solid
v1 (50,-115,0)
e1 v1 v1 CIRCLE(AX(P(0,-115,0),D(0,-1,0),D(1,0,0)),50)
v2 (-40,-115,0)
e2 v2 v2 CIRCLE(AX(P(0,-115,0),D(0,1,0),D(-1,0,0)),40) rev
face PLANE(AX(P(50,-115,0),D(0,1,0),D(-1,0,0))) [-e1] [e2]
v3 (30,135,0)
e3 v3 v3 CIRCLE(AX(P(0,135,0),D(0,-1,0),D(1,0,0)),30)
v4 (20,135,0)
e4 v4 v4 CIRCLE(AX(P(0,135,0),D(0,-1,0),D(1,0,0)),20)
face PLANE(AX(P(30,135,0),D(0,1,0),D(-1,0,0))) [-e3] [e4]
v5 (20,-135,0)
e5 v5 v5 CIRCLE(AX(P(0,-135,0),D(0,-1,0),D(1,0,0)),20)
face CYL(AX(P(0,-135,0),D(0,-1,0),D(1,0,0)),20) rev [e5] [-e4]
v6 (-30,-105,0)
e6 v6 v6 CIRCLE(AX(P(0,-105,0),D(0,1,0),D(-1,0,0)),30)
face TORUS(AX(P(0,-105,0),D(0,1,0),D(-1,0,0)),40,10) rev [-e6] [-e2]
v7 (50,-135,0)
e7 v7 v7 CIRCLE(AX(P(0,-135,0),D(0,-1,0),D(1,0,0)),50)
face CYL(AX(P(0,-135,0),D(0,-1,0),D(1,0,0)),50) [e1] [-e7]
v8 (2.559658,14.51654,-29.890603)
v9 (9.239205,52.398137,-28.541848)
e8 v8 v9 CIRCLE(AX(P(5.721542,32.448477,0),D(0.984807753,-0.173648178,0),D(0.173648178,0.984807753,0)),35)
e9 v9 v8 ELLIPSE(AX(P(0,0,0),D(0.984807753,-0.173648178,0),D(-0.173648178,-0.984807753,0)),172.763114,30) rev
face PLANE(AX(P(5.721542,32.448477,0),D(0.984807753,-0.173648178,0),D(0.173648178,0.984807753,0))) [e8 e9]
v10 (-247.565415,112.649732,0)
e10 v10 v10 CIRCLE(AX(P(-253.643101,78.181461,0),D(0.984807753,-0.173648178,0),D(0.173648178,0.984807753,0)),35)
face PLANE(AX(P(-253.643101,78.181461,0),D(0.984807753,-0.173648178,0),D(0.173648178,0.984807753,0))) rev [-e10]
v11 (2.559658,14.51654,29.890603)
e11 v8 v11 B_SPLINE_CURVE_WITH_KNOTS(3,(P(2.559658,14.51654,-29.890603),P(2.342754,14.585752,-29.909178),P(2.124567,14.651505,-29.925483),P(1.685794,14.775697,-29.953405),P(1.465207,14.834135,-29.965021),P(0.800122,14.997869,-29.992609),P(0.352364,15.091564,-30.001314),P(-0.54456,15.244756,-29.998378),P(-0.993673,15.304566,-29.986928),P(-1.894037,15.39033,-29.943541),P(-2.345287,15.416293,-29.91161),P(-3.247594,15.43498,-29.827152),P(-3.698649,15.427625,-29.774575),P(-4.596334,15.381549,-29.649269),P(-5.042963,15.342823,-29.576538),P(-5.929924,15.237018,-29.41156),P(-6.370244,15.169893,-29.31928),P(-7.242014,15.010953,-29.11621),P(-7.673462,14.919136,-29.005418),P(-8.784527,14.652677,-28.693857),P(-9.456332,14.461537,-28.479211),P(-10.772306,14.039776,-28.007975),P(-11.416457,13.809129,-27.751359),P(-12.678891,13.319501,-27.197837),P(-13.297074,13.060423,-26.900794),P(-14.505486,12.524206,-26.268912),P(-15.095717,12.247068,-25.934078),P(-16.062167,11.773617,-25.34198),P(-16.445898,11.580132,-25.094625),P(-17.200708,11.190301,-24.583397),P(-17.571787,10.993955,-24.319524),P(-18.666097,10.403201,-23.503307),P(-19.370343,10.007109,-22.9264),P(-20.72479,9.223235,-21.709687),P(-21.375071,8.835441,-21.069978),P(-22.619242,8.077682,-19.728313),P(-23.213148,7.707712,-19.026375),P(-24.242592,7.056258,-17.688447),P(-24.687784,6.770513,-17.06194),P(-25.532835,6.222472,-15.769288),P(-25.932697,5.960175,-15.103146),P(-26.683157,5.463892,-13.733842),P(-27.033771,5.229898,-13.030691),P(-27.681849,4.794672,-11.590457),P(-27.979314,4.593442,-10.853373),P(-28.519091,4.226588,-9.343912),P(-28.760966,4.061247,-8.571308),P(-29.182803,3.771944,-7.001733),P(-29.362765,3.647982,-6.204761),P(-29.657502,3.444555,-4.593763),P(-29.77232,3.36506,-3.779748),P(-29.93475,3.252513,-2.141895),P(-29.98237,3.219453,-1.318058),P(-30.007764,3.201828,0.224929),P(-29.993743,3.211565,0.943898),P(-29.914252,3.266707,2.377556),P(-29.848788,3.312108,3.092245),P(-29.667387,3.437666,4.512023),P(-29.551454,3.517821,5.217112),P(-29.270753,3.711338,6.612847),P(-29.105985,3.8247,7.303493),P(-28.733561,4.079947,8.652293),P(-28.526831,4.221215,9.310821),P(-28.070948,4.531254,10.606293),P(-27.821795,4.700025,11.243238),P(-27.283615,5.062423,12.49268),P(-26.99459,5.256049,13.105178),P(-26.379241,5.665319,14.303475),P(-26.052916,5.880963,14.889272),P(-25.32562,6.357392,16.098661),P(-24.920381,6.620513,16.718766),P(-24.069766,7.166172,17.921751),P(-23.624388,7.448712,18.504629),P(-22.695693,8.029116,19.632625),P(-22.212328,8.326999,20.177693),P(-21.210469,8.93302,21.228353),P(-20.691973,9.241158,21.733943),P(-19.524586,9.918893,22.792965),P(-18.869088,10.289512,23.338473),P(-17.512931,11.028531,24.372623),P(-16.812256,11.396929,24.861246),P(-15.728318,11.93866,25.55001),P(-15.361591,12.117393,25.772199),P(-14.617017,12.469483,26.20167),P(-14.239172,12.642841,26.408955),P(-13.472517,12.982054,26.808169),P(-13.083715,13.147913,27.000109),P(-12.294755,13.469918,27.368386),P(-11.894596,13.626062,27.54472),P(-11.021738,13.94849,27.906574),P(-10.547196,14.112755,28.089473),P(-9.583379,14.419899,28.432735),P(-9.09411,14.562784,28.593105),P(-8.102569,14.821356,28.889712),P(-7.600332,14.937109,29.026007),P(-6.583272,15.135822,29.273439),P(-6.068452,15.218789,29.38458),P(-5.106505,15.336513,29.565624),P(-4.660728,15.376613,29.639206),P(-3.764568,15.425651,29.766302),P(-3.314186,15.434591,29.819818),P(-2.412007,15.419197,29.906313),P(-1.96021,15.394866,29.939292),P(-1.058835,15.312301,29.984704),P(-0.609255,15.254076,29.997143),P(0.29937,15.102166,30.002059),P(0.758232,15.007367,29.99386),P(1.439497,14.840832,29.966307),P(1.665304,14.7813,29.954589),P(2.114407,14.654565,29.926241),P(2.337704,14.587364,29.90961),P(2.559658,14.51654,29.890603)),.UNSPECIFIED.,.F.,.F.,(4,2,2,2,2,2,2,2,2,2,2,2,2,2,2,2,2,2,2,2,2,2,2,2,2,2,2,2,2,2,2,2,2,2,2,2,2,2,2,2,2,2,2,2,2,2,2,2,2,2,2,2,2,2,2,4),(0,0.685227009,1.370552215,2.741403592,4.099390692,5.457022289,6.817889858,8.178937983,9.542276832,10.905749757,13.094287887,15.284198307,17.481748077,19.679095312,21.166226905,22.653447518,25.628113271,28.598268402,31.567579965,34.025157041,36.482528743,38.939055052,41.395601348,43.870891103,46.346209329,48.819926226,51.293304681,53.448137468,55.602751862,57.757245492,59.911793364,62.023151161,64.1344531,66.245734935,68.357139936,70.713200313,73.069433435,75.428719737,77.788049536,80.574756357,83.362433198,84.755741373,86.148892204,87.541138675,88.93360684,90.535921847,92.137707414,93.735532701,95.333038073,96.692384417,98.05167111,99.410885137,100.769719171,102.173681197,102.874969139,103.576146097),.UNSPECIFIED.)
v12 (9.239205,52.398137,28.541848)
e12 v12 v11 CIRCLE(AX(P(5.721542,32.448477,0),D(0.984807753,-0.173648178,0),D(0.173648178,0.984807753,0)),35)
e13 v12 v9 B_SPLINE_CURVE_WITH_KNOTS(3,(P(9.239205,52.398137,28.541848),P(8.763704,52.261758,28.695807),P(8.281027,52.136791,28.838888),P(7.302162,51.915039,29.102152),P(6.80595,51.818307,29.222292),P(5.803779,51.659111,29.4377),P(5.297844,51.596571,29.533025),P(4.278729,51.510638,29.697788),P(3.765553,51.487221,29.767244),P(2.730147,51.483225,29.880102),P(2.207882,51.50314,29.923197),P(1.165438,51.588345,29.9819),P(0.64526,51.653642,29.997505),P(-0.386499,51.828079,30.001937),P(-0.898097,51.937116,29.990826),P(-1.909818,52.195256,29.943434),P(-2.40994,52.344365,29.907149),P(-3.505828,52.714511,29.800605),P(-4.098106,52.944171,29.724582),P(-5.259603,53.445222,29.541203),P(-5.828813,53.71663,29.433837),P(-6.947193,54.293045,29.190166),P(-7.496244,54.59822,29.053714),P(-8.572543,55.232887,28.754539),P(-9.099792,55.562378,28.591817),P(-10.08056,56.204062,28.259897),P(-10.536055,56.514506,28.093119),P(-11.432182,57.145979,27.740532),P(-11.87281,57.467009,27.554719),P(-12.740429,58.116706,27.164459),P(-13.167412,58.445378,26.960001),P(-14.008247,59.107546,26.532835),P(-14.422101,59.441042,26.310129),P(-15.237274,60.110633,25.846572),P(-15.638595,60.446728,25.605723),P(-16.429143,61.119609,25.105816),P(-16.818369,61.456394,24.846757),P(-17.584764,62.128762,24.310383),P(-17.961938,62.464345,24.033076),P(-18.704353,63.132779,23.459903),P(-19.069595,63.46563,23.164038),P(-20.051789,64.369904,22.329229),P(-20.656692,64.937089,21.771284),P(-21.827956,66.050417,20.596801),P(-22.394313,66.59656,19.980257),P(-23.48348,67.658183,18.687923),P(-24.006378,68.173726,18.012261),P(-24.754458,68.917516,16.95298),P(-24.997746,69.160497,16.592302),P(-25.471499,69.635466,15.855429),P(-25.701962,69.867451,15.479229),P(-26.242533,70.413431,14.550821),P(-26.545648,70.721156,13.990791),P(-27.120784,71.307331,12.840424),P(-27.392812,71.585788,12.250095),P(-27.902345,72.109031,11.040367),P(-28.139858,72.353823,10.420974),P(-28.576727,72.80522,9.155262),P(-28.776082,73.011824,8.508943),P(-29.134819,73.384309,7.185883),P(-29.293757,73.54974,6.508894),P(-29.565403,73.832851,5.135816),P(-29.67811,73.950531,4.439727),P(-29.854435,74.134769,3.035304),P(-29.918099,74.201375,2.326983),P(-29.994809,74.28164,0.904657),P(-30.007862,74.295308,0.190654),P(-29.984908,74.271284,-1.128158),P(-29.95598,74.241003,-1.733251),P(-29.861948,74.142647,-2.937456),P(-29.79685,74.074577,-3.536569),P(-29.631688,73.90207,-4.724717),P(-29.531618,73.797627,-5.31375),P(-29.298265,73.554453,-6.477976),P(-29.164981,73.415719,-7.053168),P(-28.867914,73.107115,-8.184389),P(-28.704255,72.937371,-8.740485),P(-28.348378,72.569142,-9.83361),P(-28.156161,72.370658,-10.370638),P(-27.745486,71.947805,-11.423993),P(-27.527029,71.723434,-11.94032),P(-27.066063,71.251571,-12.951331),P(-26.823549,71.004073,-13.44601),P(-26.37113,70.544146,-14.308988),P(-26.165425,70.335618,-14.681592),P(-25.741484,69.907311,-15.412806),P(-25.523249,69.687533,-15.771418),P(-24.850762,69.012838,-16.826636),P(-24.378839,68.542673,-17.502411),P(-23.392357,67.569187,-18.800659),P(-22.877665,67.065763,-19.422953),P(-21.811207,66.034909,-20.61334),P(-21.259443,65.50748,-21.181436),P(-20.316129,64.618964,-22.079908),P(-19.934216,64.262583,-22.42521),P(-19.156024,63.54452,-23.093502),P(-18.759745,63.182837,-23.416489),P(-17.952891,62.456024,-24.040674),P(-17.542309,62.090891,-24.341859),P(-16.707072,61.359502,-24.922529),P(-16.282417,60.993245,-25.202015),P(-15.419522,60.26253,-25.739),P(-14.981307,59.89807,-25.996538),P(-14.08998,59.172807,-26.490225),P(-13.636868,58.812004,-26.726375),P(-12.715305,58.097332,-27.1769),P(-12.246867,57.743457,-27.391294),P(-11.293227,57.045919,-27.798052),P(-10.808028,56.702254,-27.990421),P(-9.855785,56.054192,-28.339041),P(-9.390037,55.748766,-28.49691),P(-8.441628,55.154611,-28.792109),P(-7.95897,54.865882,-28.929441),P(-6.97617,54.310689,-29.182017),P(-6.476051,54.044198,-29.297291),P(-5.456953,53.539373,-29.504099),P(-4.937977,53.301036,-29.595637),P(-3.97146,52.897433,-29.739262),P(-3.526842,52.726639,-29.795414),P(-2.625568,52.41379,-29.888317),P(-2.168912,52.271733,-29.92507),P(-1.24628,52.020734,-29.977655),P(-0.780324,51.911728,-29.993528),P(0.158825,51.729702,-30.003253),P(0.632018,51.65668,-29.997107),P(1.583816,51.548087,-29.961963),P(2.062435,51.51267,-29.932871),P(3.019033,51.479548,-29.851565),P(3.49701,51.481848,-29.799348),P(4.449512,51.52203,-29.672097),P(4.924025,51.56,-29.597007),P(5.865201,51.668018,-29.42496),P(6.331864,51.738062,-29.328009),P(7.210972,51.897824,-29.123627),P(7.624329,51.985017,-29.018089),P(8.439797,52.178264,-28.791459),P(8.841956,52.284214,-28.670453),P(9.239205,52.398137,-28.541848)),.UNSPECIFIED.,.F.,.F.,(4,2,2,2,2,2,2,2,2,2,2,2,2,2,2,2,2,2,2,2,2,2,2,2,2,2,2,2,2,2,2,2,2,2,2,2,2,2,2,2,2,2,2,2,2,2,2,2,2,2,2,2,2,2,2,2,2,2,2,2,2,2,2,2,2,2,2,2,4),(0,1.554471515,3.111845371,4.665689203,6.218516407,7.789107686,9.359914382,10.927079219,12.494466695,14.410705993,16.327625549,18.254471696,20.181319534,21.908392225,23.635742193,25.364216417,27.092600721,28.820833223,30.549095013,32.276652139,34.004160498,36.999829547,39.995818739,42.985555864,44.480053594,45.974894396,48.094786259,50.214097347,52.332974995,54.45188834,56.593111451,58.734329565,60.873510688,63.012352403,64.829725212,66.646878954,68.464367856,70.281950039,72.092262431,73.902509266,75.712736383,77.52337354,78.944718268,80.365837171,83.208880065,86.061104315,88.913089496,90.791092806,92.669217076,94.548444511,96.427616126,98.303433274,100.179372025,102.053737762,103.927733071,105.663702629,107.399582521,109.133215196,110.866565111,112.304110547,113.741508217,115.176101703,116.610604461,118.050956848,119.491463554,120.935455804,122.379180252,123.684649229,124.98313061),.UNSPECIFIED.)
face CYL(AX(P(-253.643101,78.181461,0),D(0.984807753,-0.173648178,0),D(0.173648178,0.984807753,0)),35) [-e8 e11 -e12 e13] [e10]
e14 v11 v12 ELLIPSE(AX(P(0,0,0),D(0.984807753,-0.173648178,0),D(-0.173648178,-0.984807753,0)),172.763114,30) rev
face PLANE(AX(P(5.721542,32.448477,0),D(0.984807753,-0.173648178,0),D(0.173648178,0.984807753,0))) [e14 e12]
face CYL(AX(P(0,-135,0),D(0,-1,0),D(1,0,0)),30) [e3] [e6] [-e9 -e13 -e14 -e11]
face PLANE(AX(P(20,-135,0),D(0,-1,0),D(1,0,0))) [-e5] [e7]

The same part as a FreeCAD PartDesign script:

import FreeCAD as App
import Part
import Sketcher

V = App.Vector


def edges_at(feature, points):
    """Names of the edges that pass closest to the given points."""
    edges = feature.Shape.Edges
    near = lambda p: min(range(len(edges)), key=lambda i: edges[i].distToShape(Part.Vertex(*p))[0])
    return sorted({f"Edge{near(p) + 1}" for p in points})

doc = App.newDocument("Part")
params = doc.addObject("Spreadsheet::Sheet", "Params")
for row, (alias, value) in enumerate([
    ("sketch1_width", "10 mm"),
    ("sketch1_width2", "30 mm"),
    ("sketch1_height", "250 mm"),
    ("revolution_angle", "360 deg"),
    ("sketch2_diameter", "70 mm"),
    ("pad1_length", "263.365761 mm"),
    ("fillet_radius", "10 mm"),
    ("sketch3_diameter", "40 mm"),
], start=1):
    params.set(f"A{row}", alias)
    params.set(f"B{row}", "=" + value)
    params.setAlias(f"B{row}", alias)

body = doc.addObject("PartDesign::Body", "Body")

# Sketch on XY plane
sketch1 = body.newObject("Sketcher::SketchObject", "Sketch")
sketch1.AttachmentSupport = (doc.getObject("XY_Plane"), [""])
sketch1.MapMode = "FlatFace"
sketch1.addGeometry([
    Part.LineSegment(V(30, -115, 0), V(30, 135, 0)),  # 0
    Part.LineSegment(V(30, 135, 0), V(20, 135, 0)),  # 1
    Part.LineSegment(V(20, 135, 0), V(20, -135, 0)),  # 2
    Part.LineSegment(V(20, -135, 0), V(50, -135, 0)),  # 3
    Part.LineSegment(V(50, -135, 0), V(50, -115, 0)),  # 4
    Part.LineSegment(V(50, -115, 0), V(30, -115, 0)),  # 5
], False)
sketch1.addConstraint([
    Sketcher.Constraint("Coincident", 0, 2, 1, 1),
    Sketcher.Constraint("Coincident", 1, 2, 2, 1),
    Sketcher.Constraint("Coincident", 2, 2, 3, 1),
    Sketcher.Constraint("Coincident", 3, 2, 4, 1),
    Sketcher.Constraint("Coincident", 4, 2, 5, 1),
    Sketcher.Constraint("Coincident", 5, 2, 0, 1),
    Sketcher.Constraint("Vertical", 0),
    Sketcher.Constraint("Horizontal", 1),
    Sketcher.Constraint("Vertical", 2),
    Sketcher.Constraint("Horizontal", 3),
    Sketcher.Constraint("Vertical", 4),
    Sketcher.Constraint("Horizontal", 5),
    Sketcher.Constraint("Equal", 5, 4),
    Sketcher.Constraint("DistanceX", 1, 2, 1, 1, 10.0),
    Sketcher.Constraint("DistanceX", 3, 1, 3, 2, 30.0),
    Sketcher.Constraint("DistanceY", 0, 1, 0, 2, 250.0),
    Sketcher.Constraint("DistanceX", -1, 1, 0, 2, 30.0),
    Sketcher.Constraint("DistanceY", -1, 1, 0, 2, 135.0),
])
sketch1.setExpression("Constraints[13]", "Params.sketch1_width")
sketch1.setExpression("Constraints[14]", "Params.sketch1_width2")
sketch1.setExpression("Constraints[15]", "Params.sketch1_height")
revolution = body.newObject("PartDesign::Revolution", "Revolution")
revolution.Profile = sketch1
revolution.ReferenceAxis = (sketch1, ["V_Axis"])
revolution.setExpression("Angle", "Params.revolution_angle")

# Sketch on an angled plane
sketch2 = body.newObject("Sketcher::SketchObject", "Sketch001")
sketch2.Placement = App.Placement(V(0.0697, 0.39529, -0.070775), App.Rotation(V(-0.03015369, -0.171010072, -0.984807753), V(0.171010072, 0.96984631, -0.173648178), V(0.984807753, -0.173648178, 0), "ZXY"))
sketch2.addGeometry(Part.Circle(V(-6, 32, 0), V(0, 0, 1), 35), False)
sketch2.addConstraint([
    Sketcher.Constraint("Diameter", 0, 70.0),
    Sketcher.Constraint("DistanceX", 0, 3, -1, 1, 5.721542),
    Sketcher.Constraint("DistanceY", -1, 1, 0, 3, 32.040897),
])
sketch2.setExpression("Constraints[0]", "Params.sketch2_diameter")
pad1 = body.newObject("PartDesign::Pad", "Pad")
pad1.Profile = sketch2
pad1.setExpression("Length", "Params.pad1_length")
pad1.Reversed = True
doc.recompute()

fillet = body.newObject("PartDesign::Fillet", "Fillet")
fillet.Base = (pad1, edges_at(pad1, [(-30, -115, 0)]))
fillet.setExpression("Radius", "Params.fillet_radius")

# Sketch on XZ plane
sketch3 = body.newObject("Sketcher::SketchObject", "Sketch002")
sketch3.AttachmentSupport = (doc.getObject("XZ_Plane"), [""])
sketch3.MapMode = "FlatFace"
sketch3.AttachmentOffset = App.Placement(V(0, 0, -135), App.Rotation())
sketch3.addGeometry(Part.Circle(V(0, 0, 0), V(0, 0, 1), 20), False)
sketch3.addConstraint([
    Sketcher.Constraint("Coincident", 0, 3, -1, 1),
    Sketcher.Constraint("Diameter", 0, 40.0),
])
sketch3.setExpression("Constraints[1]", "Params.sketch3_diameter")
pocket1 = body.newObject("PartDesign::Pocket", "Pocket")
pocket1.Profile = sketch3
pocket1.Type = "ThroughAll"
pocket1.Reversed = True

doc.recompute()
